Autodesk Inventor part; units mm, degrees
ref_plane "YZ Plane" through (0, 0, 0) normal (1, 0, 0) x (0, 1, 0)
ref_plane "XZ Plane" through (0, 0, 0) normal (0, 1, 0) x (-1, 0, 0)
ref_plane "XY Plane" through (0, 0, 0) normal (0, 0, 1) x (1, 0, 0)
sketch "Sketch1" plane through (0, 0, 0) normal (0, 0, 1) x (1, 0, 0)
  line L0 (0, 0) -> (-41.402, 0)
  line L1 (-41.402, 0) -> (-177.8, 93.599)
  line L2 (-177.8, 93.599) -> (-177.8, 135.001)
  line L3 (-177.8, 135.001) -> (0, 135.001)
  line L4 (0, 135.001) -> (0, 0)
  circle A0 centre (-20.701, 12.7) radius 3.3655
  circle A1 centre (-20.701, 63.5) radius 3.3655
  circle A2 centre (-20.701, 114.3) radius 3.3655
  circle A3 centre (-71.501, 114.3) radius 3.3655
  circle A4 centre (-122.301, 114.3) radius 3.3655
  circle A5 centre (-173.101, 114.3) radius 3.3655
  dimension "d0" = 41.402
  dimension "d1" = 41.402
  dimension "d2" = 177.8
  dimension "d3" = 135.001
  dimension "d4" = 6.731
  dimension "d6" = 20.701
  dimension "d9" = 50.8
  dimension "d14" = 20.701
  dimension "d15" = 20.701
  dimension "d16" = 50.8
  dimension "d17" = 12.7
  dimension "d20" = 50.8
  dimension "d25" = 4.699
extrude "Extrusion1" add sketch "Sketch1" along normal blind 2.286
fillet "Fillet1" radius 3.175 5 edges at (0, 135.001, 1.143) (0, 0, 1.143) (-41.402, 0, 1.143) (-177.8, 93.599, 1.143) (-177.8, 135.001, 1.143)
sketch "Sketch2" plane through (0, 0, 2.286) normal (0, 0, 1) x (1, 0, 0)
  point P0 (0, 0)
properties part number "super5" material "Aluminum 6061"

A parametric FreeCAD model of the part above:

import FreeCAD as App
import Part
import Sketcher
Q = App.Units.Quantity


def edges_at(feature, points):
    """Names of the edges that pass closest to the given points."""
    edges = feature.Shape.Edges
    near = lambda p: min(range(len(edges)), key=lambda i: edges[i].distToShape(Part.Vertex(*p))[0])
    return sorted({f"Edge{near(p) + 1}" for p in points})

doc = App.newDocument("Part")
params = doc.addObject("Spreadsheet::Sheet", "Params")
for row, (alias, value) in enumerate([
    ("sketch1_width", "7 in"),
    ("sketch1_diameter", "0.265 in"),
    ("sketch1_width2", "1.63 in"),
    ("sketch1_height", "5.315 in"),
    ("pad1_length", "0.09 in"),
    ("fillet_radius", "0.125 in"),
], start=1):
    params.set(f"A{row}", alias)
    params.set(f"B{row}", "=" + value)
    params.setAlias(f"B{row}", alias)

body = doc.addObject("PartDesign::Body", "Body")

sketch1 = body.newObject("Sketcher::SketchObject", "Sketch")
sketch1.AttachmentSupport = (doc.getObject("XY_Plane"), [""])
sketch1.MapMode = "FlatFace"
sketch1.addGeometry(Part.LineSegment(App.Vector(-41.402, 0, 0), App.Vector(0, 0, 0)), False)
sketch1.addGeometry(Part.LineSegment(App.Vector(0, 0, 0), App.Vector(0, 135.001, 0)), False)
sketch1.addGeometry(Part.LineSegment(App.Vector(0, 135.001, 0), App.Vector(-177.8, 135.001, 0)), False)
sketch1.addGeometry(Part.LineSegment(App.Vector(-177.8, 135.001, 0), App.Vector(-177.8, 93.599, 0)), False)
sketch1.addGeometry(Part.LineSegment(App.Vector(-177.8, 93.599, 0), App.Vector(-41.402, 0, 0)), False)
sketch1.addGeometry(Part.Circle(App.Vector(-20.701, 12.7, 0), App.Vector(0, 0, 1), 3.3655), False)
sketch1.addGeometry(Part.Circle(App.Vector(-20.701, 63.5, 0), App.Vector(0, 0, 1), 3.3655), False)
sketch1.addGeometry(Part.Circle(App.Vector(-173.101, 114.3, 0), App.Vector(0, 0, 1), 3.3655), False)
sketch1.addGeometry(Part.Circle(App.Vector(-122.301, 114.3, 0), App.Vector(0, 0, 1), 3.3655), False)
sketch1.addGeometry(Part.Circle(App.Vector(-71.501, 114.3, 0), App.Vector(0, 0, 1), 3.3655), False)
sketch1.addGeometry(Part.Circle(App.Vector(-20.701, 114.3, 0), App.Vector(0, 0, 1), 3.3655), False)
sketch1.addConstraint(Sketcher.Constraint("Coincident", 0, 2, 1, 1))
sketch1.addConstraint(Sketcher.Constraint("Coincident", 1, 2, 2, 1))
sketch1.addConstraint(Sketcher.Constraint("Coincident", 2, 2, 3, 1))
sketch1.addConstraint(Sketcher.Constraint("Coincident", 3, 2, 4, 1))
sketch1.addConstraint(Sketcher.Constraint("Coincident", 4, 2, 0, 1))
sketch1.addConstraint(Sketcher.Constraint("Horizontal", 0))
sketch1.addConstraint(Sketcher.Constraint("Vertical", 1))
sketch1.addConstraint(Sketcher.Constraint("Horizontal", 2))
sketch1.addConstraint(Sketcher.Constraint("Vertical", 3))
sketch1.addConstraint(Sketcher.Constraint("Coincident", 0, 2, -1, 1))
sketch1.addConstraint(Sketcher.Constraint("Equal", 5, 6))
sketch1.addConstraint(Sketcher.Constraint("Equal", 6, 7))
sketch1.addConstraint(Sketcher.Constraint("Equal", 7, 8))
sketch1.addConstraint(Sketcher.Constraint("Equal", 8, 9))
sketch1.addConstraint(Sketcher.Constraint("Equal", 9, 10))
sketch1.addConstraint(Sketcher.Constraint("Horizontal", 7, 3, 8, 3))
sketch1.addConstraint(Sketcher.Constraint("Horizontal", 8, 3, 9, 3))
sketch1.addConstraint(Sketcher.Constraint("Horizontal", 9, 3, 10, 3))
sketch1.addConstraint(Sketcher.Constraint("Vertical", 5, 3, 6, 3))
sketch1.addConstraint(Sketcher.Constraint("Vertical", 6, 3, 10, 3))
sketch1.addConstraint(Sketcher.Constraint("Equal", 0, 3))
sketch1.addConstraint(Sketcher.Constraint("DistanceX", 2, 2, 2, 1, Q("7 in")))
sketch1.addConstraint(Sketcher.Constraint("Diameter", 5, Q("0.265 in")))
sketch1.addConstraint(Sketcher.Constraint("DistanceY", 5, 3, 6, 3, Q("2 in")))
sketch1.addConstraint(Sketcher.Constraint("DistanceY", 6, 3, 7, 3, Q("2 in")))
sketch1.addConstraint(Sketcher.Constraint("DistanceX", 7, 3, 8, 3, Q("2 in")))
sketch1.addConstraint(Sketcher.Constraint("DistanceX", 8, 3, 9, 3, Q("2 in")))
sketch1.addConstraint(Sketcher.Constraint("DistanceX", 9, 3, 6, 3, Q("2 in")))
sketch1.addConstraint(Sketcher.Constraint("DistanceX", 0, 1, 0, 2, Q("1.63 in")))
sketch1.addConstraint(Sketcher.Constraint("DistanceY", -1, 1, 5, 3, Q("0.5 in")))
sketch1.addConstraint(Sketcher.Constraint("DistanceY", 1, 1, 1, 2, Q("5.315 in")))
sketch1.addConstraint(Sketcher.Constraint("DistanceX", 5, 3, -1, 1, Q("0.815 in")))
sketch1.setExpression("Constraints[21]", "Params.sketch1_width")
sketch1.setExpression("Constraints[22]", "Params.sketch1_diameter")
sketch1.setExpression("Constraints[28]", "Params.sketch1_width2")
sketch1.setExpression("Constraints[30]", "Params.sketch1_height")
pad1 = body.newObject("PartDesign::Pad", "Pad")
pad1.Profile = sketch1
pad1.setExpression("Length", "Params.pad1_length")
doc.recompute()

fillet = body.newObject("PartDesign::Fillet", "Fillet")
fillet.Base = (pad1, edges_at(pad1, [
    (0, 135.001, 1.143),
    (0, 0, 1.143),
    (-41.402, 0, 1.143),
    (-177.8, 93.599, 1.143),
    (-177.8, 135.001, 1.143),
]))
fillet.setExpression("Radius", "Params.fillet_radius")

doc.recompute()
